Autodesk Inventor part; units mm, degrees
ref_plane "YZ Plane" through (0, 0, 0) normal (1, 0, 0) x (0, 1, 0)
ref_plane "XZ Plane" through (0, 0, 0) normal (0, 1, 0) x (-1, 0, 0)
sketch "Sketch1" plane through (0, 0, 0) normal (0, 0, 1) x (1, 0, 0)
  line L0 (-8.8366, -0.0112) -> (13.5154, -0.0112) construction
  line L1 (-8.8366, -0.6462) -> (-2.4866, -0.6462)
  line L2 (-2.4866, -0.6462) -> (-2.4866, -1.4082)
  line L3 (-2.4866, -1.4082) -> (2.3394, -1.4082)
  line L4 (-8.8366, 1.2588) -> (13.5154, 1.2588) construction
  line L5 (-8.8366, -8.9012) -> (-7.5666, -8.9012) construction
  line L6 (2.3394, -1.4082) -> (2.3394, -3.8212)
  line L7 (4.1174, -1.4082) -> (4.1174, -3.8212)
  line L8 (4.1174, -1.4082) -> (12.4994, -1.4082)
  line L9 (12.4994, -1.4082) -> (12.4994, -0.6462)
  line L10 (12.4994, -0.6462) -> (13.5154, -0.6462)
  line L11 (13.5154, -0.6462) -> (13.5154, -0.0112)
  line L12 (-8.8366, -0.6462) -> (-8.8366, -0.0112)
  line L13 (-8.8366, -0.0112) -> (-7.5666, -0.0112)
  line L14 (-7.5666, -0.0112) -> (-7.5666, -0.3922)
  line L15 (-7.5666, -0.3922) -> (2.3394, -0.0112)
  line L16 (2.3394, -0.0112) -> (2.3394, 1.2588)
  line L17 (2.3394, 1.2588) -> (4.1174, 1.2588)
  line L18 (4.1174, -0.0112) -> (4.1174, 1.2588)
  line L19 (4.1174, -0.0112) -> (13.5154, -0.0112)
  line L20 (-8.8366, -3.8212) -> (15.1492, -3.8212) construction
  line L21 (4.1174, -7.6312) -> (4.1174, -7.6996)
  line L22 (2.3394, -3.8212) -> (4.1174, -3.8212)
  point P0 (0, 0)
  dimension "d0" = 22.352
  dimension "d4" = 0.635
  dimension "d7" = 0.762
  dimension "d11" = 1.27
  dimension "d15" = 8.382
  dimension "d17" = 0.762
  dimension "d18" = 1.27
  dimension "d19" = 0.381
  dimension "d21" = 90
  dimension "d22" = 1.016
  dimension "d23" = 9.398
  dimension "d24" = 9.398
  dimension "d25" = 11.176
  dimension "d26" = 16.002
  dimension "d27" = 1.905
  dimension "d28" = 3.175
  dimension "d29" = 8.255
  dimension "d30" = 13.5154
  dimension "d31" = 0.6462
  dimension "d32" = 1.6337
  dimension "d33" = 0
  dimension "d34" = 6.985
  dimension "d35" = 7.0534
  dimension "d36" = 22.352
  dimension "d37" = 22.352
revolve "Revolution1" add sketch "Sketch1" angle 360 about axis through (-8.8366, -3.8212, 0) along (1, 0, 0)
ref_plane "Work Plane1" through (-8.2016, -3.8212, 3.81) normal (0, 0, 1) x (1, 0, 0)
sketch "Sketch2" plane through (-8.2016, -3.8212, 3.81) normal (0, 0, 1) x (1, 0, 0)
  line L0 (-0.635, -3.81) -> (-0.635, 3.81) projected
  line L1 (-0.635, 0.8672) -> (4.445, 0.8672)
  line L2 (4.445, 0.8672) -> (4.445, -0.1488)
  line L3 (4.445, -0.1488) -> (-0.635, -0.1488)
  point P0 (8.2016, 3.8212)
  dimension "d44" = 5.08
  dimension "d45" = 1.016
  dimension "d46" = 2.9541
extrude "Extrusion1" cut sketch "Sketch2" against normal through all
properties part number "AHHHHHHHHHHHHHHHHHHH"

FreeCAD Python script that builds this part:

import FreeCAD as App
import Part
import Sketcher

V = App.Vector
Q = App.Units.Quantity


def add_polygon(sketch, points):
    """Adds a closed chain of lines whose ends are joined by coincident constraints."""
    first, n = sketch.GeometryCount, len(points)
    for a, b in zip(points, points[1:] + points[:1]):
        sketch.addGeometry(Part.LineSegment(App.Vector(*a, 0), App.Vector(*b, 0)), False)
    for i in range(n):
        sketch.addConstraint(Sketcher.Constraint("Coincident", first + i, 2, first + (i + 1) % n, 1))

doc = App.newDocument("Part")
params = doc.addObject("Spreadsheet::Sheet", "Params")
for row, (alias, value) in enumerate([
    ("sketch1_width", "0.33 in"),
    ("sketch1_width2", "0.04 in"),
    ("sketch1_width3", "0.05 in"),
    ("sketch1_width4", "0.88 in"),
    ("sketch1_height", "0.03 in"),
    ("revolution_angle", "360 deg"),
    ("sketch2_width", "0.2 in"),
    ("sketch2_height", "0.04 in"),
], start=1):
    params.set(f"A{row}", alias)
    params.set(f"B{row}", "=" + value)
    params.setAlias(f"B{row}", alias)

body = doc.addObject("PartDesign::Body", "Body")

sketch1 = doc.addObject("Sketcher::SketchObject", "Sketch")
body.addObject(sketch1)
sketch1.AttachmentSupport = (doc.XY_Plane, [""])
sketch1.MapMode = "FlatFace"
add_polygon(sketch1, [(-8.8366, -0.0112), (-8.8366, -0.6462), (-2.4866, -0.6462), (-2.4866, -1.4082), (2.3394, -1.4082), (2.3394, -3.8212), (4.1174, -3.8212), (4.1174, -1.4082), (12.4994, -1.4082), (12.4994, -0.6462), (13.5154, -0.6462), (13.5154, -0.0112), (4.1174, -0.0112), (4.1174, 1.2588), (2.3394, 1.2588), (2.3394, -0.0112), (-7.5666, -0.3922), (-7.5666, -0.0112)])
sketch1.addGeometry(Part.LineSegment(V(-8.8366, -3.8212, 0), V(13.5154, -3.8212, 0)), True)
sketch1.addConstraint(Sketcher.Constraint("Vertical", 0))
sketch1.addConstraint(Sketcher.Constraint("Horizontal", 1))
sketch1.addConstraint(Sketcher.Constraint("Vertical", 2))
sketch1.addConstraint(Sketcher.Constraint("Horizontal", 3))
sketch1.addConstraint(Sketcher.Constraint("Vertical", 4))
sketch1.addConstraint(Sketcher.Constraint("Horizontal", 5))
sketch1.addConstraint(Sketcher.Constraint("Vertical", 6))
sketch1.addConstraint(Sketcher.Constraint("Horizontal", 7))
sketch1.addConstraint(Sketcher.Constraint("Vertical", 8))
sketch1.addConstraint(Sketcher.Constraint("Horizontal", 9))
sketch1.addConstraint(Sketcher.Constraint("Vertical", 10))
sketch1.addConstraint(Sketcher.Constraint("Horizontal", 11))
sketch1.addConstraint(Sketcher.Constraint("Vertical", 12))
sketch1.addConstraint(Sketcher.Constraint("Horizontal", 13))
sketch1.addConstraint(Sketcher.Constraint("Vertical", 14))
sketch1.addConstraint(Sketcher.Constraint("Vertical", 16))
sketch1.addConstraint(Sketcher.Constraint("Horizontal", 17))
sketch1.addConstraint(Sketcher.Constraint("Horizontal", 18))
sketch1.addConstraint(Sketcher.Constraint("Horizontal", 3, 2, 6, 2))
sketch1.addConstraint(Sketcher.Constraint("Horizontal", 1, 2, 8, 2))
sketch1.addConstraint(Sketcher.Constraint("Horizontal", 11, 2, 14, 2))
sketch1.addConstraint(Sketcher.Constraint("Horizontal", 14, 2, 16, 2))
sketch1.addConstraint(Sketcher.Constraint("Horizontal", 5, 2, 18, 1))
sketch1.addConstraint(Sketcher.Constraint("Vertical", 6, 2, 11, 2))
sketch1.addConstraint(Sketcher.Constraint("Vertical", 4, 2, 13, 2))
sketch1.addConstraint(Sketcher.Constraint("Vertical", 17, 2, 18, 1))
sketch1.addConstraint(Sketcher.Constraint("Vertical", 10, 2, 18, 2))
sketch1.addConstraint(Sketcher.Constraint("Equal", 17, 12))
sketch1.addConstraint(Sketcher.Constraint("DistanceX", 7, 1, 7, 2, Q("0.33 in")))
sketch1.addConstraint(Sketcher.Constraint("DistanceX", 9, 1, 9, 2, Q("0.04 in")))
sketch1.addConstraint(Sketcher.Constraint("DistanceX", 17, 2, 17, 1, Q("0.05 in")))
sketch1.addConstraint(Sketcher.Constraint("DistanceX", 18, 1, 18, 2, Q("0.88 in")))
sketch1.addConstraint(Sketcher.Constraint("DistanceY", 2, 2, 2, 1, Q("0.03 in")))
sketch1.addConstraint(Sketcher.Constraint("DistanceY", 0, 2, 0, 1, Q("0.025 in")))
sketch1.addConstraint(Sketcher.Constraint("DistanceY", 16, 1, 16, 2, Q("0.015 in")))
sketch1.addConstraint(Sketcher.Constraint("DistanceX", 0, 2, 3, 2, Q("0.44 in")))
sketch1.addConstraint(Sketcher.Constraint("DistanceY", 4, 2, 1, 2, Q("0.125 in")))
sketch1.addConstraint(Sketcher.Constraint("DistanceX", 1, 1, 1, 2, Q("0.25 in")))
sketch1.addConstraint(Sketcher.Constraint("DistanceX", -1, 1, 9, 2, Q("0.5321 in")))
sketch1.addConstraint(Sketcher.Constraint("DistanceY", 0, 2, -1, 1, 0.6462))
sketch1.setExpression("Constraints[46]", "Params.sketch1_width")
sketch1.setExpression("Constraints[47]", "Params.sketch1_width2")
sketch1.setExpression("Constraints[48]", "Params.sketch1_width3")
sketch1.setExpression("Constraints[49]", "Params.sketch1_width4")
sketch1.setExpression("Constraints[50]", "Params.sketch1_height")
revolution = doc.addObject("PartDesign::Revolution", "Revolution")
body.addObject(revolution)
revolution.Profile = sketch1
revolution.ReferenceAxis = (sketch1, ["Axis0"])
revolution.setExpression("Angle", "Params.revolution_angle")

sketch2 = doc.addObject("Sketcher::SketchObject", "Sketch001")
body.addObject(sketch2)
sketch2.AttachmentSupport = (doc.XY_Plane, [""])
sketch2.MapMode = "FlatFace"
sketch2.AttachmentOffset = App.Placement(V(0, 0, 0.15 * 25.4), App.Rotation())
add_polygon(sketch2, [(-8.8366, -2.954), (-8.8366, -3.97), (-3.7566, -3.97), (-3.7566, -2.954)])
sketch2.addConstraint(Sketcher.Constraint("Vertical", 0))
sketch2.addConstraint(Sketcher.Constraint("Horizontal", 1))
sketch2.addConstraint(Sketcher.Constraint("Vertical", 2))
sketch2.addConstraint(Sketcher.Constraint("Horizontal", 3))
sketch2.addConstraint(Sketcher.Constraint("DistanceX", 1, 1, 1, 2, Q("0.2 in")))
sketch2.addConstraint(Sketcher.Constraint("DistanceY", 0, 2, 0, 1, Q("0.04 in")))
sketch2.addConstraint(Sketcher.Constraint("DistanceY", 2, 2, -1, 1, Q("0.1163 in")))
sketch2.addConstraint(Sketcher.Constraint("DistanceX", 0, 2, -1, 1, Q("0.3479 in")))
sketch2.setExpression("Constraints[8]", "Params.sketch2_width")
sketch2.setExpression("Constraints[9]", "Params.sketch2_height")
pocket1 = doc.addObject("PartDesign::Pocket", "Pocket")
body.addObject(pocket1)
pocket1.Profile = sketch2
pocket1.Type = "ThroughAll"

doc.recompute()
